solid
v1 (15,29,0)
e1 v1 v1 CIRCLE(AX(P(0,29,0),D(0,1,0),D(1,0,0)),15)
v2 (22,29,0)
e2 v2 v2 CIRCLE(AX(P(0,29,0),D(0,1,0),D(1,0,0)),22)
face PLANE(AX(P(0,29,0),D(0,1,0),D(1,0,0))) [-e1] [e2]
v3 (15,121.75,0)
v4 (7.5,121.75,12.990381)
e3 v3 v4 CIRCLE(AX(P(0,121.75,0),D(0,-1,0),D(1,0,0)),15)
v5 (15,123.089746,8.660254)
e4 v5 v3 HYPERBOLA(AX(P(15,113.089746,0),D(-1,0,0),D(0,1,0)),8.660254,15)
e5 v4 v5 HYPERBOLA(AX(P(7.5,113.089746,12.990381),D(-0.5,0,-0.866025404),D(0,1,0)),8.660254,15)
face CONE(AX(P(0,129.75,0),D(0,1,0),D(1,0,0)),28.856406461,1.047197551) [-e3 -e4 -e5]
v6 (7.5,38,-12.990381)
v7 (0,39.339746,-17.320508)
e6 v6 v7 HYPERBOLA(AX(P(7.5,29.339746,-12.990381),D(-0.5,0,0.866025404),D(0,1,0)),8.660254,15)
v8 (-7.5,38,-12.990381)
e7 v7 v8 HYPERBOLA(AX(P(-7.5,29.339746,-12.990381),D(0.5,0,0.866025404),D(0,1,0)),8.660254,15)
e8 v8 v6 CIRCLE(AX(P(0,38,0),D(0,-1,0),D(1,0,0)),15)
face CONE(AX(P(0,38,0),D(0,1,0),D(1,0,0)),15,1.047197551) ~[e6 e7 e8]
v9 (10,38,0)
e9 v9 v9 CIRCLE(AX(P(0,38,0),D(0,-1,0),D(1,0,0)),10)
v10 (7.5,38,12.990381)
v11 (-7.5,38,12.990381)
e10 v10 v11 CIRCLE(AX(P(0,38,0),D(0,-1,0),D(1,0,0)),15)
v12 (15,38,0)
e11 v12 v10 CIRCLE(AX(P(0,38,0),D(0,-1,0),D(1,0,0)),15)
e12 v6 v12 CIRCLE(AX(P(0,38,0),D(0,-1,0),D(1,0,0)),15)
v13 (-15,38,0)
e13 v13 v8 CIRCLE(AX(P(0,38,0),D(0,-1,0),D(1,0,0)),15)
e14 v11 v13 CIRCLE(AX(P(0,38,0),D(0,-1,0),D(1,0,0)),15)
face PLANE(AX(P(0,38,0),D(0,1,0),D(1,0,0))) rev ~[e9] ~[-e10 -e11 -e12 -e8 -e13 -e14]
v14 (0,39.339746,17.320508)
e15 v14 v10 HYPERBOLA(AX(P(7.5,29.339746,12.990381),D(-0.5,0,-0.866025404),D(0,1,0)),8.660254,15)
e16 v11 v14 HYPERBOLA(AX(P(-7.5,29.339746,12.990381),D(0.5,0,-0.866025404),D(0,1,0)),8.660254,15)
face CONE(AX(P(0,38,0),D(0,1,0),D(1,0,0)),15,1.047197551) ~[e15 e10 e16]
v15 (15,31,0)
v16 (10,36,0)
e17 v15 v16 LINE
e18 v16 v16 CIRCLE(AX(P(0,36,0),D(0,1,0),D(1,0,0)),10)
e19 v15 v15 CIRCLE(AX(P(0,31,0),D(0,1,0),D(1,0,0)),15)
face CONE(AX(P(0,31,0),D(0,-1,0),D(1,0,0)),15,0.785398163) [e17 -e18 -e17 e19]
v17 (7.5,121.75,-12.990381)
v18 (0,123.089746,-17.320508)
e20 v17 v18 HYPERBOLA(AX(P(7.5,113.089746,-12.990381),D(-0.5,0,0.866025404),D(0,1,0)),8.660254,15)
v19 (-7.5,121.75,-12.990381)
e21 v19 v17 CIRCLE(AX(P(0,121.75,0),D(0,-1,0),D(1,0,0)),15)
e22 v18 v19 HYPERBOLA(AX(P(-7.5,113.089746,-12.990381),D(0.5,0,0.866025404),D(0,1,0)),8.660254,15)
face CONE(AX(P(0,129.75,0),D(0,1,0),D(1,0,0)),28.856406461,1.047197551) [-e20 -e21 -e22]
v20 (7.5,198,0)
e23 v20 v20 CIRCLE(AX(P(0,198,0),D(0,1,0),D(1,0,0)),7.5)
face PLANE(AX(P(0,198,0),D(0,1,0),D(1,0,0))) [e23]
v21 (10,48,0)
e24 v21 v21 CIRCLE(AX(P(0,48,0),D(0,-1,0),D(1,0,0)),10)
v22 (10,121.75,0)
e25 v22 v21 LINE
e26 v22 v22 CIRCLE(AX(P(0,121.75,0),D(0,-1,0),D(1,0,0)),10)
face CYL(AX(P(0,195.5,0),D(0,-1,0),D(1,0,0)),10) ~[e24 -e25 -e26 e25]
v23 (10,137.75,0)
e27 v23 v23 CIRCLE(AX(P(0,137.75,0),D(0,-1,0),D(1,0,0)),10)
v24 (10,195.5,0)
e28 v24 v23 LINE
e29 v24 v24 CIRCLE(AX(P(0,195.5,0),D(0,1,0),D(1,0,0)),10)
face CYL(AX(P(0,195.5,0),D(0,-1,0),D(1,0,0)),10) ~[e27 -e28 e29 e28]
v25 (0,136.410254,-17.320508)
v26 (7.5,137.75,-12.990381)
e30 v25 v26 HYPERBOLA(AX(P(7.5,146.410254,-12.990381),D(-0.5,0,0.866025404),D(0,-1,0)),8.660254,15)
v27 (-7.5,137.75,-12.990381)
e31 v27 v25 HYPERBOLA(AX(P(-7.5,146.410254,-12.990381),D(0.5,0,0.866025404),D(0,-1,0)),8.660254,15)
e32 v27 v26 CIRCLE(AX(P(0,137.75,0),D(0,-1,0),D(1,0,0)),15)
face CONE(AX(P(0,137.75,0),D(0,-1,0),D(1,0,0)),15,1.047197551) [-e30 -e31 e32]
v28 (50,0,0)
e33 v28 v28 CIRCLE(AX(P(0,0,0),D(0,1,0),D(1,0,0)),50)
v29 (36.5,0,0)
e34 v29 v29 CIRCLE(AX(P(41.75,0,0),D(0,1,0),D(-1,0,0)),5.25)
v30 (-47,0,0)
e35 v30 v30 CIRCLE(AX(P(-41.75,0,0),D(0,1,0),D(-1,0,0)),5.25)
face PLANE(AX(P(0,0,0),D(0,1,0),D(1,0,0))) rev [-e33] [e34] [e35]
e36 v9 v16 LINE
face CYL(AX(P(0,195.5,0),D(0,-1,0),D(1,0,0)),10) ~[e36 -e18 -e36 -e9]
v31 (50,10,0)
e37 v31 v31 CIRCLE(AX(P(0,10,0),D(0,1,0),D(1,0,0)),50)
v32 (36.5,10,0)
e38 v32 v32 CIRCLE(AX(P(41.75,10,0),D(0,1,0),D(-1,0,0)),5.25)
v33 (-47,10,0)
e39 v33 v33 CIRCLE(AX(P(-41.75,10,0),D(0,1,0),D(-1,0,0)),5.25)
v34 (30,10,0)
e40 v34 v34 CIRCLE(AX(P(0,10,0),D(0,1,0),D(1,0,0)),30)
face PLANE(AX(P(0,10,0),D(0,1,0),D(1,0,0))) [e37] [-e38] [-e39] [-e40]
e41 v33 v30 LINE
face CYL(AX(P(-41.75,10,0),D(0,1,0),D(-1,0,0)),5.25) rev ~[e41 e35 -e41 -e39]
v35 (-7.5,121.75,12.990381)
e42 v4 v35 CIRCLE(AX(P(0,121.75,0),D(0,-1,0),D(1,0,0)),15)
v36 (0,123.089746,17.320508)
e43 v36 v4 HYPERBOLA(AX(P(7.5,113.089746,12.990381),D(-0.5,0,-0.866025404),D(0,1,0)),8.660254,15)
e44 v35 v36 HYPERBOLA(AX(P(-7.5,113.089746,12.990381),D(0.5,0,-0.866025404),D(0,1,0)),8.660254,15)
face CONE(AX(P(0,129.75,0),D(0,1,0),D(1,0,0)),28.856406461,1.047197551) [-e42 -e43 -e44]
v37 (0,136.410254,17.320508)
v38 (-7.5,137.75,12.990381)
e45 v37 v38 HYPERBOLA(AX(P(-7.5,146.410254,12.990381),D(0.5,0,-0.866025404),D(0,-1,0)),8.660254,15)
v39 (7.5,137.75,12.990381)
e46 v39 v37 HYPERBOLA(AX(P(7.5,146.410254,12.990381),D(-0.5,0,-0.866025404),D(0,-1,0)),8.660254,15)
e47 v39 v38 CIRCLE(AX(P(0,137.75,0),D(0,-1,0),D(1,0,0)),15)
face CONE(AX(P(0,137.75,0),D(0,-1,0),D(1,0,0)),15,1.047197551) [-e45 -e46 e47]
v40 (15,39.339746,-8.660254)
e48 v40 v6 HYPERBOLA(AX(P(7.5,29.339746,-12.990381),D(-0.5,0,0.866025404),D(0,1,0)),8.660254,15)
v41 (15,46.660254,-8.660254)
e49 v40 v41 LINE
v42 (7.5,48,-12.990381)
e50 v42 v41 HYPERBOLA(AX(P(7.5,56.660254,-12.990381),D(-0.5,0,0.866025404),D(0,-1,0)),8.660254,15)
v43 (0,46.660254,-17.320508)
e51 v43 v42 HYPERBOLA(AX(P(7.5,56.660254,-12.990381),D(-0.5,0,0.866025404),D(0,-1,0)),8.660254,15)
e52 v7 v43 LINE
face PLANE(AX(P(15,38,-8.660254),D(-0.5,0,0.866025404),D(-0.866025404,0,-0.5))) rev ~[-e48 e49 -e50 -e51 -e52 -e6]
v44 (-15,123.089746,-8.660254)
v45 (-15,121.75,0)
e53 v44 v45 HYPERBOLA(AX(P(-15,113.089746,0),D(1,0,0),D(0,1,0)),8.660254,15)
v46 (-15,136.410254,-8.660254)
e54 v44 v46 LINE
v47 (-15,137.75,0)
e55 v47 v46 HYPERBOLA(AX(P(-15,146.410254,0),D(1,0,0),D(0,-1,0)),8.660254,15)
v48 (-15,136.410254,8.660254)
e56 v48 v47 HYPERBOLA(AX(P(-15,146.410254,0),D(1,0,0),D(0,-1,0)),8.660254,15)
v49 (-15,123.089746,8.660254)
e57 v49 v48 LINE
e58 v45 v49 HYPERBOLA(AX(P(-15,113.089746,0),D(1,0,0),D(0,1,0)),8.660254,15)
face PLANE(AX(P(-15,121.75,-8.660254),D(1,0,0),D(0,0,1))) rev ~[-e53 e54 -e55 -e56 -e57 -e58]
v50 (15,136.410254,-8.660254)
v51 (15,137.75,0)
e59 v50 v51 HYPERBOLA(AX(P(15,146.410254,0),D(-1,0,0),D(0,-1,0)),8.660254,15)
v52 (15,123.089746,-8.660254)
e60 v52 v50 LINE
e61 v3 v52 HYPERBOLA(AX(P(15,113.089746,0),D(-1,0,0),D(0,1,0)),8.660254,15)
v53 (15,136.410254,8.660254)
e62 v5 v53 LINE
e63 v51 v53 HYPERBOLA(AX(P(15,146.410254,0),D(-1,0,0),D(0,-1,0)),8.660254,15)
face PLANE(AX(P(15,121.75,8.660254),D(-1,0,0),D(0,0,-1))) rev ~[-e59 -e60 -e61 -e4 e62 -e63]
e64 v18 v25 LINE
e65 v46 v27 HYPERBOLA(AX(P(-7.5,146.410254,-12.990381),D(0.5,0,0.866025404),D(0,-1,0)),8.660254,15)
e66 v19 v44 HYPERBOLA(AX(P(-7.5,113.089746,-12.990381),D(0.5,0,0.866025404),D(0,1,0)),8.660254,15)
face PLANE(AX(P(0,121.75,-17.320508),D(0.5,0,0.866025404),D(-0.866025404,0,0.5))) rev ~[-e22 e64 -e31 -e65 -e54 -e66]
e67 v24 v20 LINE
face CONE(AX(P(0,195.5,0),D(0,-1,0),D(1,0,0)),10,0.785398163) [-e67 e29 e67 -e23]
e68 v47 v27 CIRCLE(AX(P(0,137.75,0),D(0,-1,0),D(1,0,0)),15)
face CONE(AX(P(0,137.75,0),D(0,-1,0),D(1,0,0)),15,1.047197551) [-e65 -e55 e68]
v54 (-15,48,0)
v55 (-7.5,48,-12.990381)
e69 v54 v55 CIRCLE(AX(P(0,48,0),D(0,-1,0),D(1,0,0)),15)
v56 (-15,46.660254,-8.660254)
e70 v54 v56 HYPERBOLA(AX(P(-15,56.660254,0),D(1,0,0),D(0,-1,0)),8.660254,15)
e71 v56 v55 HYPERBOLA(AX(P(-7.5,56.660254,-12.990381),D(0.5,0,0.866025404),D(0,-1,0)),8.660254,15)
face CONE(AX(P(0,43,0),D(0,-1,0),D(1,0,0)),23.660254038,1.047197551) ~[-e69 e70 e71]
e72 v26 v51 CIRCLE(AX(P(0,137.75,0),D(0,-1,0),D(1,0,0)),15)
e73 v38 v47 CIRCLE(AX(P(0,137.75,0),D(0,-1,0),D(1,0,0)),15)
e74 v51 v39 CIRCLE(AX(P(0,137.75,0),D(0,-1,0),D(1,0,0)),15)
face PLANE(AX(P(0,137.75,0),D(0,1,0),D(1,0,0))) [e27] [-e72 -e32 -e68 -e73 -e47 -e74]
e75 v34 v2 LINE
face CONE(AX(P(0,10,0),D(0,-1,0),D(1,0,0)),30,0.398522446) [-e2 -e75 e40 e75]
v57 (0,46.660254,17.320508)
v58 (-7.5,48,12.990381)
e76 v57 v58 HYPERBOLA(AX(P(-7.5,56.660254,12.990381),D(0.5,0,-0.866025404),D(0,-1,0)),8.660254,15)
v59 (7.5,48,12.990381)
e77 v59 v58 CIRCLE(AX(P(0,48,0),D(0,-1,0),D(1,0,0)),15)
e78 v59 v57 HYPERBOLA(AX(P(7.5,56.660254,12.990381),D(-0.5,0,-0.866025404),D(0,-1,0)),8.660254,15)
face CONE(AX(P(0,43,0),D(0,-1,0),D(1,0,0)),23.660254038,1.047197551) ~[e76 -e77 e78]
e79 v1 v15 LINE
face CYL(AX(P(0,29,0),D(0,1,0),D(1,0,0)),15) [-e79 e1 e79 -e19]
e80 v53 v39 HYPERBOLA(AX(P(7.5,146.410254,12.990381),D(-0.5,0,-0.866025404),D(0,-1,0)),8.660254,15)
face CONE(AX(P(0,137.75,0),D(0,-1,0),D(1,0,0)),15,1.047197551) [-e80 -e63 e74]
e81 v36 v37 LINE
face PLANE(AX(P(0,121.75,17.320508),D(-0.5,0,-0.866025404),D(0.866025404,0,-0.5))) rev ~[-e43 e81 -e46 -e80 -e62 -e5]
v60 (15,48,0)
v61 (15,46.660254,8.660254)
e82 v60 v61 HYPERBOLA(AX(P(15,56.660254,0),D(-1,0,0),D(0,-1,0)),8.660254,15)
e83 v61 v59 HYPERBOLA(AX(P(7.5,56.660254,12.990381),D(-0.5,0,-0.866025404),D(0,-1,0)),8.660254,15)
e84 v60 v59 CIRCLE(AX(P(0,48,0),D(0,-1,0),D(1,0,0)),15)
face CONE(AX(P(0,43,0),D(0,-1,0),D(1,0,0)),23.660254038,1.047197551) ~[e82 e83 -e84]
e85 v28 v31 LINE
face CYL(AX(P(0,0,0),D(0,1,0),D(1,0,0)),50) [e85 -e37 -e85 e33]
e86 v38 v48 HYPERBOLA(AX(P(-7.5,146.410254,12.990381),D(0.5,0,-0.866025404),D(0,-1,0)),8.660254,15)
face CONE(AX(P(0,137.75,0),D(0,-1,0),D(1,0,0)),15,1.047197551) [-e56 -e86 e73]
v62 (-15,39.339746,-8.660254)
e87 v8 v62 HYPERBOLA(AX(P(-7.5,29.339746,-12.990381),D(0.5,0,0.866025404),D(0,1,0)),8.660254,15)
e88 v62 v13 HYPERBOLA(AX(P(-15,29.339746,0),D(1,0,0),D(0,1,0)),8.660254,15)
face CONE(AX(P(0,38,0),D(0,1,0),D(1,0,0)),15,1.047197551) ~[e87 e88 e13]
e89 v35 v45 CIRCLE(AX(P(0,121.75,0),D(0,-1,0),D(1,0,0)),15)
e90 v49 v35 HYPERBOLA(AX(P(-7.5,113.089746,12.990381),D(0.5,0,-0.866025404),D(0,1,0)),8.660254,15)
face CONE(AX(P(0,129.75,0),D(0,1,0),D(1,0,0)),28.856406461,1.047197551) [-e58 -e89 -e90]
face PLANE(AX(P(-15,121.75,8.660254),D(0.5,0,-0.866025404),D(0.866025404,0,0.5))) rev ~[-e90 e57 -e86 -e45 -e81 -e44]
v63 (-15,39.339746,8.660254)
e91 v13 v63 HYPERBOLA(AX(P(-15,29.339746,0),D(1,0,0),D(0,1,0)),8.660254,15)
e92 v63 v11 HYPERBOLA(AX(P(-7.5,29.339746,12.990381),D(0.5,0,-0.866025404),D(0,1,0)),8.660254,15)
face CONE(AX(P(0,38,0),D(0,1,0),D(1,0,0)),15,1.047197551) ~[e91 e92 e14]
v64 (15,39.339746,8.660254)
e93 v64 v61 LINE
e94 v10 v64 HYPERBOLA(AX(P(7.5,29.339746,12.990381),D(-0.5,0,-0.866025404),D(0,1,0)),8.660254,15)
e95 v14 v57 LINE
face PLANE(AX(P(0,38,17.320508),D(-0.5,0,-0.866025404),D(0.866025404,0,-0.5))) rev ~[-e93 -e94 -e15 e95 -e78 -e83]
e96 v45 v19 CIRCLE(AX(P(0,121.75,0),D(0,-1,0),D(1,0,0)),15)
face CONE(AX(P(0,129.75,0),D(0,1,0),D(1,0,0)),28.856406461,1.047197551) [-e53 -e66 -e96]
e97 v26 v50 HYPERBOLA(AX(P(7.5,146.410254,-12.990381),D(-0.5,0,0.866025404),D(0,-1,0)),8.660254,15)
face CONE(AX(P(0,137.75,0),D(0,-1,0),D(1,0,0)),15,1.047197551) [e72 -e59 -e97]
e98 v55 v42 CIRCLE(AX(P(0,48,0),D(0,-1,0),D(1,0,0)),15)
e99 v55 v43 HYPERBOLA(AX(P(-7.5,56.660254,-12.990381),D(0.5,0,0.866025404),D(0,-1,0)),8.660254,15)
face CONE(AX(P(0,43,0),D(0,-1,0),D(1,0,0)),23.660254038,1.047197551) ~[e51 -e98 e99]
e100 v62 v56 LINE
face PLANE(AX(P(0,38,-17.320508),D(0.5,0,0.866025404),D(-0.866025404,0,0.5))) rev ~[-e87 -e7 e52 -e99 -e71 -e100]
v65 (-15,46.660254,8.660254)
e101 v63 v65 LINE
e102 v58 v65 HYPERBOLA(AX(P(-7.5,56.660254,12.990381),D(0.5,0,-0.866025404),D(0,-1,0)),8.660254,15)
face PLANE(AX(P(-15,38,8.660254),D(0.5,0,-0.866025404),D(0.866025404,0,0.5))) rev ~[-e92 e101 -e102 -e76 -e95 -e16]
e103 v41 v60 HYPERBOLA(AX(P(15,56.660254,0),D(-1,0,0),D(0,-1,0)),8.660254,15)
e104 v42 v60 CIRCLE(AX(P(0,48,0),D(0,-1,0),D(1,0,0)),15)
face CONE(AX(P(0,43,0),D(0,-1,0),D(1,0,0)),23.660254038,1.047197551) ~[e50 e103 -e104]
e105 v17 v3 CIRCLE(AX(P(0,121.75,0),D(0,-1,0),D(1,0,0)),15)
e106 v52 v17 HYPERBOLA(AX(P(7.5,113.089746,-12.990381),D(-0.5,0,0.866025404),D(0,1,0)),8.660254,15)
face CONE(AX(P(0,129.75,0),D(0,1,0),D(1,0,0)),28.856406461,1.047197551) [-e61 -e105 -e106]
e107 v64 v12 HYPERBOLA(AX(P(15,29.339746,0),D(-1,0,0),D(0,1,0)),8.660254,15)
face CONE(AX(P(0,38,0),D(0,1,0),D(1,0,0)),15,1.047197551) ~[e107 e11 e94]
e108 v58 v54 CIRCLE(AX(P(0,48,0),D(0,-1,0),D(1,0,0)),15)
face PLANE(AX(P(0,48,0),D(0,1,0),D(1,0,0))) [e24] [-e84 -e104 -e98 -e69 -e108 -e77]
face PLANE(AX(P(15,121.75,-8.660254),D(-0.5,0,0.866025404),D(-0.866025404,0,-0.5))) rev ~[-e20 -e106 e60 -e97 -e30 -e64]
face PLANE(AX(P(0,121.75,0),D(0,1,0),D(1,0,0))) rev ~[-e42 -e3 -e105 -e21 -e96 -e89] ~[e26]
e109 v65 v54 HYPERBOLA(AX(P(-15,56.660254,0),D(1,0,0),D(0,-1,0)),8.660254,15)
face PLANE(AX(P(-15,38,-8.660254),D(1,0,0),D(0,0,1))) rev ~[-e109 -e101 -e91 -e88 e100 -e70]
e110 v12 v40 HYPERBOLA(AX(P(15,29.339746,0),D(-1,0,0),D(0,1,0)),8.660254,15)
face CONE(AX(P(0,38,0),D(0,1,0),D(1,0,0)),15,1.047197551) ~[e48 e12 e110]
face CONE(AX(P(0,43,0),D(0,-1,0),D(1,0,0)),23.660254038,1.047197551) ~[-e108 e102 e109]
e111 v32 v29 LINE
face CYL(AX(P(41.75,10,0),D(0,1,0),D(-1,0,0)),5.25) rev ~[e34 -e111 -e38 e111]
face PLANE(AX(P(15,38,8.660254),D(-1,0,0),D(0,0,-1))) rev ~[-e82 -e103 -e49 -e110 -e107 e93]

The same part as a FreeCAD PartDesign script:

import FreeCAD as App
import Part
import Sketcher

V = App.Vector
Q = App.Units.Quantity


def add_polygon(sketch, points):
    """Adds a closed chain of lines whose ends are joined by coincident constraints."""
    first, n = sketch.GeometryCount, len(points)
    for a, b in zip(points, points[1:] + points[:1]):
        sketch.addGeometry(Part.LineSegment(App.Vector(*a, 0), App.Vector(*b, 0)), False)
    for i in range(n):
        sketch.addConstraint(Sketcher.Constraint("Coincident", first + i, 2, first + (i + 1) % n, 1))

doc = App.newDocument("Part")
body = doc.addObject("PartDesign::Body", "Body")

# Sketch on XY plane
sketch1 = body.newObject("Sketcher::SketchObject", "Sketch")
sketch1.AttachmentSupport = (doc.getObject("XY_Plane"), [""])
sketch1.MapMode = "FlatFace"
add_polygon(sketch1, [(-50, 0), (0, 0), (0, 198), (-7.5, 198), (-10, 195.5), (-10, 36), (-15, 31), (-15, 29), (-22, 29), (-30, 10), (-50, 10)])  # lines 0-10
sketch1.addConstraint([
    Sketcher.Constraint("Horizontal", 0),
    Sketcher.Constraint("Vertical", 1),
    Sketcher.Constraint("Horizontal", 2),
    Sketcher.Constraint("Vertical", 4),
    Sketcher.Constraint("Vertical", 6),
    Sketcher.Constraint("Horizontal", 7),
    Sketcher.Constraint("Horizontal", 9),
    Sketcher.Constraint("Vertical", 10),
    Sketcher.Constraint("Coincident", 0, 2, -1, 1),
    Sketcher.Constraint("Parallel", 3, 5),
    Sketcher.Constraint("DistanceX", 0, 1, 0, 2, Q("50 mm")),
    Sketcher.Constraint("DistanceX", 7, 2, 7, 1, Q("7 mm")),
    Sketcher.Constraint("DistanceX", 9, 2, 9, 1, Q("20 mm")),
    Sketcher.Constraint("DistanceY", 1, 1, 1, 2, Q("198 mm")),
    Sketcher.Constraint("DistanceY", 6, 2, 6, 1, Q("2 mm")),
    Sketcher.Constraint("DistanceY", 10, 2, 10, 1, Q("10 mm")),
    Sketcher.Constraint("Angle", 3, Q("-135 deg")),
    Sketcher.Constraint("DistanceX", 2, 2, 2, 1, Q("7.5 mm")),
    Sketcher.Constraint("DistanceY", 4, 2, 4, 1, Q("159.5 mm")),
    Sketcher.Constraint("DistanceX", 3, 2, -1, 1, Q("10 mm")),
    Sketcher.Constraint("DistanceX", 5, 2, -1, 1, Q("15 mm")),
])
revolution = body.newObject("PartDesign::Revolution", "Revolution")
revolution.Profile = sketch1
revolution.ReferenceAxis = (sketch1, ["V_Axis"])
revolution.Angle = 360

# Sketch on XZ plane
sketch2 = body.newObject("Sketcher::SketchObject", "Sketch001")
sketch2.AttachmentSupport = (doc.getObject("XZ_Plane"), [""])
sketch2.MapMode = "FlatFace"
sketch2.AttachmentOffset = App.Placement(V(0, 0, -38), App.Rotation())
add_polygon(sketch2, [(0, -17), (-15, -9), (-15, 9), (0, 17), (15, 9), (15, -9)])  # lines 0-5
sketch2.addConstraint([
    Sketcher.Constraint("Vertical", 1),
    Sketcher.Constraint("Vertical", 4),
    Sketcher.Constraint("Symmetric", 0, 2, 3, 2, -1, 1),
    Sketcher.Constraint("Symmetric", 2, 2, 5, 2, -1, 1),
    Sketcher.Constraint("PointOnObject", 2, 2, -2),
    Sketcher.Constraint("Parallel", 2, 5),
    Sketcher.Constraint("Horizontal", 1, 2, 3, 2),
    Sketcher.Constraint("Angle", 0, Q("150 deg")),
    Sketcher.Constraint("DistanceX", 0, 2, -1, 1, Q("15 mm")),
    Sketcher.Constraint("DistanceY", 1, 1, 1, 2, Q("17.320508 mm")),
])
pad1 = body.newObject("PartDesign::Pad", "Pad")
pad1.Profile = sketch2
pad1.Length = 10
pad1.Reversed = True

# Sketch on XZ plane
sketch3 = body.newObject("Sketcher::SketchObject", "Sketch002")
sketch3.AttachmentSupport = (doc.getObject("XZ_Plane"), [""])
sketch3.MapMode = "FlatFace"
sketch3.AttachmentOffset = App.Placement(V(0, 0, -121.75), App.Rotation())
add_polygon(sketch3, [(15, -9), (0, -17), (-15, -9), (-15, 9), (0, 17), (15, 9)])  # lines 0-5
sketch3.addConstraint([
    Sketcher.Constraint("Vertical", 2),
    Sketcher.Constraint("Vertical", 5),
    Sketcher.Constraint("Symmetric", 0, 2, 3, 2, -1, 1),
    Sketcher.Constraint("Symmetric", 1, 2, 4, 2, -1, 1),
    Sketcher.Constraint("PointOnObject", 0, 2, -2),
    Sketcher.Constraint("Parallel", 0, 3),
    Sketcher.Constraint("Horizontal", 2, 2, 4, 2),
    Sketcher.Constraint("Angle", 0, Q("-150 deg")),
    Sketcher.Constraint("DistanceX", 1, 2, -1, 1, Q("15 mm")),
    Sketcher.Constraint("DistanceY", 2, 1, 2, 2, Q("17.320508 mm")),
])
pad2 = body.newObject("PartDesign::Pad", "Pad001")
pad2.Profile = sketch3
pad2.Length = 16
pad2.Reversed = True

# Sketch on XY plane
sketch4 = body.newObject("Sketcher::SketchObject", "Sketch003")
sketch4.AttachmentSupport = (doc.getObject("XY_Plane"), [""])
sketch4.MapMode = "FlatFace"
add_polygon(sketch4, [(-15, 138), (-29, 138), (-29, 130)])  # lines 0-2
add_polygon(sketch4, [(-29, 130), (-29, 122), (-15, 122)])  # lines 3-5
add_polygon(sketch4, [(-24, 48), (-24, 43), (-15, 48)])  # lines 6-8
add_polygon(sketch4, [(-24, 43), (-24, 38), (-15, 38)])  # lines 9-11
sketch4.addConstraint([
    Sketcher.Constraint("Horizontal", 0),
    Sketcher.Constraint("Vertical", 1),
    Sketcher.Constraint("Vertical", 3),
    Sketcher.Constraint("Horizontal", 4),
    Sketcher.Constraint("Vertical", 6),
    Sketcher.Constraint("Horizontal", 8),
    Sketcher.Constraint("Vertical", 9),
    Sketcher.Constraint("Horizontal", 10),
    Sketcher.Constraint("Coincident", 5, 2, 1, 2),
    Sketcher.Constraint("Coincident", 11, 2, 6, 2),
    Sketcher.Constraint("Parallel", 2, 7),
    Sketcher.Constraint("Parallel", 5, 11),
    Sketcher.Constraint("Vertical", 2, 2, 4, 2),
    Sketcher.Constraint("Vertical", 4, 2, 7, 2),
    Sketcher.Constraint("Vertical", 7, 2, 10, 2),
    Sketcher.Constraint("Equal", 1, 3),
    Sketcher.Constraint("DistanceY", 1, 2, 1, 1, Q("8 mm")),
    Sketcher.Constraint("DistanceY", 6, 2, 6, 1, Q("5 mm")),
    Sketcher.Constraint("Angle", 2, Q("30 deg")),
    Sketcher.Constraint("DistanceX", 2, 2, -1, 1, Q("15 mm")),
    Sketcher.Constraint("DistanceY", -1, 1, 6, 2, Q("43 mm")),
    Sketcher.Constraint("DistanceY", -1, 1, 0, 2, Q("137.75 mm")),
])
groove = body.newObject("PartDesign::Groove", "Groove")
groove.Profile = sketch4
groove.ReferenceAxis = (sketch4, ["V_Axis"])
groove.Angle = 360

# Sketch on XZ plane
sketch5 = body.newObject("Sketcher::SketchObject", "Sketch004")
sketch5.AttachmentSupport = (doc.getObject("XZ_Plane"), [""])
sketch5.MapMode = "FlatFace"
sketch5.AttachmentOffset = App.Placement(V(0, 0, -10), App.Rotation())
sketch5.addGeometry([
    Part.Circle(V(-42, 0, 0), V(0, 0, 1), 5),
    Part.Circle(V(42, 0, 0), V(0, 0, 1), 5),
], False)
sketch5.addConstraint([
    Sketcher.Constraint("Equal", 0, 1),
    Sketcher.Constraint("Symmetric", 0, 3, 1, 3, -1, 1),
    Sketcher.Constraint("PointOnObject", 0, 3, -1),
    Sketcher.Constraint("Diameter", 0, Q("10.5 mm")),
    Sketcher.Constraint("DistanceX", 0, 3, 1, 3, Q("83.5 mm")),
])
pocket1 = body.newObject("PartDesign::Pocket", "Pocket")
pocket1.Profile = sketch5
pocket1.Type = "ThroughAll"
pocket1.Reversed = True

doc.recompute()
